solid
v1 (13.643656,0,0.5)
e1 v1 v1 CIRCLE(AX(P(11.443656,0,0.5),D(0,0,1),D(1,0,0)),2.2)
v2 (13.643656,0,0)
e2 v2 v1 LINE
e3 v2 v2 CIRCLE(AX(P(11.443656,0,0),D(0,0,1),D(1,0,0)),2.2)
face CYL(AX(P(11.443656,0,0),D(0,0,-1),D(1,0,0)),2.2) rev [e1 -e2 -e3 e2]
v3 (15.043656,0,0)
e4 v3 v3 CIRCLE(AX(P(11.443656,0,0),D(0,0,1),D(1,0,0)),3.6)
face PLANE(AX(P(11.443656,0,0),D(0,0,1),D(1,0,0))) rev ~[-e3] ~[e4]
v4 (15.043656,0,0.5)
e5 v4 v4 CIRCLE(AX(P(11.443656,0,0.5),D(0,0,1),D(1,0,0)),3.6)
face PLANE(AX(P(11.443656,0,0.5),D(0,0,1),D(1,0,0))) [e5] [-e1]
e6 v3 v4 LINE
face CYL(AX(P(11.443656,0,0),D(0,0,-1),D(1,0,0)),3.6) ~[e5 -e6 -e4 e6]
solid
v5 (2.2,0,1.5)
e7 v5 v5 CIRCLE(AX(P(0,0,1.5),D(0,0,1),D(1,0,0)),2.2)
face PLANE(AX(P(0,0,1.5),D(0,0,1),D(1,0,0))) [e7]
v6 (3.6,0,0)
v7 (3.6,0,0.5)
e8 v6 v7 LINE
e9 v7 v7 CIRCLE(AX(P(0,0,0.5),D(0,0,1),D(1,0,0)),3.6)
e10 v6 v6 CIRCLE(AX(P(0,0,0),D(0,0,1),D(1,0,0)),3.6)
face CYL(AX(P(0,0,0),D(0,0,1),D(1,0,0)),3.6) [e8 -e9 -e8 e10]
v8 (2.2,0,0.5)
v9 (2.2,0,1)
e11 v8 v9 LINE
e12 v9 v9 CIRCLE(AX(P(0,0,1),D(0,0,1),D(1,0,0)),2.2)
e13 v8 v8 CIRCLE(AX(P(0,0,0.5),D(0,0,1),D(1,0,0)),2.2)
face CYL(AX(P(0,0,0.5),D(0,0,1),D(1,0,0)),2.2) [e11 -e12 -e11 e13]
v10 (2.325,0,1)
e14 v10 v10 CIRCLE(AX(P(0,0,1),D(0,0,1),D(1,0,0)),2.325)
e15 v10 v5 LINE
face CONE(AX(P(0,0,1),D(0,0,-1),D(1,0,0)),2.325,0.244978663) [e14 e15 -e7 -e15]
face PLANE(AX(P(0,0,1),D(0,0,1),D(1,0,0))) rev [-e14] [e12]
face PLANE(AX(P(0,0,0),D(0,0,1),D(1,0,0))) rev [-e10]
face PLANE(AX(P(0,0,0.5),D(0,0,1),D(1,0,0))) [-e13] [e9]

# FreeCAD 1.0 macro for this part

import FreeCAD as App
import Part
import Sketcher


def add_polygon(sketch, points):
    """Adds a closed chain of lines whose ends are joined by coincident constraints."""
    first, n = sketch.GeometryCount, len(points)
    for a, b in zip(points, points[1:] + points[:1]):
        sketch.addGeometry(Part.LineSegment(App.Vector(*a, 0), App.Vector(*b, 0)), False)
    for i in range(n):
        sketch.addConstraint(Sketcher.Constraint("Coincident", first + i, 2, first + (i + 1) % n, 1))

doc = App.newDocument("Part")
params = doc.addObject("Spreadsheet::Sheet", "Params")
for row, (alias, value) in enumerate([
    ("sketch1_width", "2.2 mm"),
    ("sketch1_width2", "3.6 mm"),
    ("sketch1_height", "1.5 mm"),
    ("sketch1_height2", "0.5 mm"),
    ("revolution_angle", "360 deg"),
    ("sketch2_diameter", "7.2 mm"),
    ("sketch2_diameter2", "4.4 mm"),
    ("pad1_length", "0.5 mm"),
], start=1):
    params.set(f"A{row}", alias)
    params.set(f"B{row}", "=" + value)
    params.setAlias(f"B{row}", alias)

body = doc.addObject("PartDesign::Body", "Body")

# Sketch on XZ plane
sketch1 = body.newObject("Sketcher::SketchObject", "Sketch")
sketch1.AttachmentSupport = (doc.getObject("XZ_Plane"), [""])
sketch1.MapMode = "FlatFace"
add_polygon(sketch1, [(2.33, 1), (2.2, 1.5), (0, 1.5), (0, 0), (3.6, 0), (3.6, 0.5), (2.2, 0.5), (2.2, 1)])  # lines 0-7
sketch1.addConstraint([
    Sketcher.Constraint("Horizontal", 1),
    Sketcher.Constraint("Vertical", 2),
    Sketcher.Constraint("Horizontal", 3),
    Sketcher.Constraint("Vertical", 4),
    Sketcher.Constraint("Horizontal", 5),
    Sketcher.Constraint("Vertical", 6),
    Sketcher.Constraint("Horizontal", 7),
    Sketcher.Constraint("Coincident", 2, 2, -1, 1),
    Sketcher.Constraint("Vertical", 0, 2, 5, 2),
    Sketcher.Constraint("Equal", 4, 6),
    Sketcher.Constraint("DistanceX", 1, 2, 1, 1, 2.2),
    Sketcher.Constraint("DistanceX", 3, 1, 3, 2, 3.6),
    Sketcher.Constraint("DistanceY", 2, 2, 2, 1, 1.5),
    Sketcher.Constraint("DistanceY", 4, 1, 4, 2, 0.5),
    Sketcher.Constraint("DistanceX", 7, 1, 7, 2, 0.125),
])
sketch1.setExpression("Constraints[18]", "Params.sketch1_width")
sketch1.setExpression("Constraints[19]", "Params.sketch1_width2")
sketch1.setExpression("Constraints[20]", "Params.sketch1_height")
sketch1.setExpression("Constraints[21]", "Params.sketch1_height2")
revolution = body.newObject("PartDesign::Revolution", "Revolution")
revolution.Profile = sketch1
revolution.ReferenceAxis = (sketch1, ["V_Axis"])
revolution.setExpression("Angle", "Params.revolution_angle")
body2 = doc.addObject("PartDesign::Body", "Body001")

# Sketch on XY plane
sketch2 = body2.newObject("Sketcher::SketchObject", "Sketch001")
sketch2.AttachmentSupport = (doc.getObject("XY_Plane001"), [""])
sketch2.MapMode = "FlatFace"
sketch2.addGeometry([
    Part.Circle(App.Vector(11.4, 0, 0), App.Vector(0, 0, 1), 3.6),
    Part.Circle(App.Vector(11.4, 0, 0), App.Vector(0, 0, 1), 2.2),
], False)
sketch2.addConstraint([
    Sketcher.Constraint("Coincident", 1, 3, 0, 3),
    Sketcher.Constraint("PointOnObject", 0, 3, -1),
    Sketcher.Constraint("Diameter", 0, 7.2),
    Sketcher.Constraint("Diameter", 1, 4.4),
    Sketcher.Constraint("DistanceX", -1, 1, 0, 3, 11.443656),
])
sketch2.setExpression("Constraints[2]", "Params.sketch2_diameter")
sketch2.setExpression("Constraints[3]", "Params.sketch2_diameter2")
pad1 = body2.newObject("PartDesign::Pad", "Pad")
pad1.Profile = sketch2
pad1.setExpression("Length", "Params.pad1_length")

doc.recompute()
